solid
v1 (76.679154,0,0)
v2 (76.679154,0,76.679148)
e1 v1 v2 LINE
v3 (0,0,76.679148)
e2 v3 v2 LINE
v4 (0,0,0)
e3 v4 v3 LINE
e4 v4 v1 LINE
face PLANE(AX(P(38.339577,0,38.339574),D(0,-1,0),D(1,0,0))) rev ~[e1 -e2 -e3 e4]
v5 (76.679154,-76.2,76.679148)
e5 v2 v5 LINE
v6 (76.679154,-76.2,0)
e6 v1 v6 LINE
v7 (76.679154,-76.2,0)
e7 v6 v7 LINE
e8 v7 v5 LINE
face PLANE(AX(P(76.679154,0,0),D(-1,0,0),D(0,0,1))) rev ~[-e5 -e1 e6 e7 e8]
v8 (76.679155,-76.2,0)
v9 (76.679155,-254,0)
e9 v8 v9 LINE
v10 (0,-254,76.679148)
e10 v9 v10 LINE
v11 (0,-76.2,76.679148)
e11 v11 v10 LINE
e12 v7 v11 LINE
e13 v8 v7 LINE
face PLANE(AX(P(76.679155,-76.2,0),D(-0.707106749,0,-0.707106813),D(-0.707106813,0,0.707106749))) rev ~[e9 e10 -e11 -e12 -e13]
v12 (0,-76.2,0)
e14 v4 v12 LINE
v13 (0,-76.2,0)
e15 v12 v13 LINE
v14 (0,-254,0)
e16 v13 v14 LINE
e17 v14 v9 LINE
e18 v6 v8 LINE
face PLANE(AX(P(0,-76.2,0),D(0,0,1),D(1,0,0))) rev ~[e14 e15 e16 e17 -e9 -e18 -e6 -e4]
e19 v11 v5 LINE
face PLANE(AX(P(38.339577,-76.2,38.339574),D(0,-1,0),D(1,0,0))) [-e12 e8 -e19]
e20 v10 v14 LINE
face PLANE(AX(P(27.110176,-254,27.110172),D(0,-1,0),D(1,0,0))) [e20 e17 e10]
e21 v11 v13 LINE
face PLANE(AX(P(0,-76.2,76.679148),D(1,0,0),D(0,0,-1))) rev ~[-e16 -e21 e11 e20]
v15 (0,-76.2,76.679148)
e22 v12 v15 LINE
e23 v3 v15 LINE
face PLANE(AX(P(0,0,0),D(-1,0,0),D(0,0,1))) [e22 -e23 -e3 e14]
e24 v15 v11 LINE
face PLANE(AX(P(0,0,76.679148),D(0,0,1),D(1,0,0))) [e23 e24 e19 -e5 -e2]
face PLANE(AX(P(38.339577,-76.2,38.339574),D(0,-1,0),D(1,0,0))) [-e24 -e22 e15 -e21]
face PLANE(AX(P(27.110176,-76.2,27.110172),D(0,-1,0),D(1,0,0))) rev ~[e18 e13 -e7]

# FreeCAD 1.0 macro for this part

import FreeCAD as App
import Part
import Sketcher
from FreeCAD import Vector
Q = App.Units.Quantity


def add_polygon(sketch, points):
    """Adds a closed chain of lines whose ends are joined by coincident constraints."""
    first, n = sketch.GeometryCount, len(points)
    for a, b in zip(points, points[1:] + points[:1]):
        sketch.addGeometry(Part.LineSegment(App.Vector(*a, 0), App.Vector(*b, 0)), False)
    for i in range(n):
        sketch.addConstraint(Sketcher.Constraint("Coincident", first + i, 2, first + (i + 1) % n, 1))

doc = App.newDocument("Part")
params = doc.addObject("Spreadsheet::Sheet", "Params")
for row, (alias, value) in enumerate([
    ("pad1_length", "3 in"),
    ("pad2_length", "7 in"),
], start=1):
    params.set(f"A{row}", alias)
    params.set(f"B{row}", "=" + value)
    params.setAlias(f"B{row}", alias)

body = doc.addObject("PartDesign::Body", "Body")

# Sketch on XZ plane
sketch1 = body.newObject("Sketcher::SketchObject", "Sketch")
sketch1.AttachmentSupport = (doc.getObject("XZ_Plane"), [""])
sketch1.MapMode = "FlatFace"
add_polygon(sketch1, [(0, 77), (0, 0), (77, 0), (77, 77)])  # lines 0-3
sketch1.addConstraint(Sketcher.Constraint("Vertical", 0))
sketch1.addConstraint(Sketcher.Constraint("Horizontal", 1))
sketch1.addConstraint(Sketcher.Constraint("Vertical", 2))
sketch1.addConstraint(Sketcher.Constraint("Horizontal", 3))
sketch1.addConstraint(Sketcher.Constraint("Coincident", 0, 2, -1, 1))
sketch1.addConstraint(Sketcher.Constraint("DistanceX", 1, 1, 1, 2, 76.679155))
sketch1.addConstraint(Sketcher.Constraint("DistanceY", 0, 2, 0, 1, 76.679148))
pad1 = body.newObject("PartDesign::Pad", "Pad")
pad1.Profile = sketch1
pad1.setExpression("Length", "Params.pad1_length")

# Sketch on XZ plane
sketch2 = body.newObject("Sketcher::SketchObject", "Sketch001")
sketch2.AttachmentSupport = (doc.getObject("XZ_Plane"), [""])
sketch2.MapMode = "FlatFace"
sketch2.AttachmentOffset = App.Placement(Vector(0, 0, 3 * 25.4), App.Rotation())
add_polygon(sketch2, [(77, 0), (0, 77), (0, 0)])  # lines 0-2
sketch2.addConstraint(Sketcher.Constraint("Vertical", 1))
sketch2.addConstraint(Sketcher.Constraint("Horizontal", 2))
sketch2.addConstraint(Sketcher.Constraint("Coincident", 1, 2, -1, 1))
sketch2.addConstraint(Sketcher.Constraint("Angle", 0, Q("135.000003 deg")))
sketch2.addConstraint(Sketcher.Constraint("DistanceX", 2, 1, 2, 2, 76.679155))
pad2 = body.newObject("PartDesign::Pad", "Pad001")
pad2.Profile = sketch2
pad2.setExpression("Length", "Params.pad2_length")

doc.recompute()
